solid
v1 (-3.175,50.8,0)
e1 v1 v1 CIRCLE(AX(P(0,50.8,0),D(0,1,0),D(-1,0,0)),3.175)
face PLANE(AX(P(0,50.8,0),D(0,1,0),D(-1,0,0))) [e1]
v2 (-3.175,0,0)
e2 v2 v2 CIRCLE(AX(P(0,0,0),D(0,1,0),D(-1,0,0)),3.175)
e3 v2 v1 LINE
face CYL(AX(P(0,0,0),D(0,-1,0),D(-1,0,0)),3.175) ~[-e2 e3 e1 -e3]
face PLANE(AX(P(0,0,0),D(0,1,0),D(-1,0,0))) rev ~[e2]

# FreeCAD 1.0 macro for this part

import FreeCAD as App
import Part
import Sketcher
from FreeCAD import Vector
Q = App.Units.Quantity

doc = App.newDocument("Part")
body = doc.addObject("PartDesign::Body", "Body")

# Sketch on XZ plane
sketch1 = body.newObject("Sketcher::SketchObject", "Sketch")
sketch1.AttachmentSupport = (doc.getObject("XZ_Plane"), [""])
sketch1.MapMode = "FlatFace"
sketch1.addGeometry(Part.Circle(Vector(0, 0, 0), Vector(0, 0, 1), 3.2), False)
sketch1.addConstraint([
    Sketcher.Constraint("Coincident", 0, 3, -1, 1),
    Sketcher.Constraint("Diameter", 0, Q("0.25 in")),
])
pad1 = body.newObject("PartDesign::Pad", "Pad")
pad1.Profile = sketch1
pad1.Length = Q("2 in")
pad1.Reversed = True

doc.recompute()
